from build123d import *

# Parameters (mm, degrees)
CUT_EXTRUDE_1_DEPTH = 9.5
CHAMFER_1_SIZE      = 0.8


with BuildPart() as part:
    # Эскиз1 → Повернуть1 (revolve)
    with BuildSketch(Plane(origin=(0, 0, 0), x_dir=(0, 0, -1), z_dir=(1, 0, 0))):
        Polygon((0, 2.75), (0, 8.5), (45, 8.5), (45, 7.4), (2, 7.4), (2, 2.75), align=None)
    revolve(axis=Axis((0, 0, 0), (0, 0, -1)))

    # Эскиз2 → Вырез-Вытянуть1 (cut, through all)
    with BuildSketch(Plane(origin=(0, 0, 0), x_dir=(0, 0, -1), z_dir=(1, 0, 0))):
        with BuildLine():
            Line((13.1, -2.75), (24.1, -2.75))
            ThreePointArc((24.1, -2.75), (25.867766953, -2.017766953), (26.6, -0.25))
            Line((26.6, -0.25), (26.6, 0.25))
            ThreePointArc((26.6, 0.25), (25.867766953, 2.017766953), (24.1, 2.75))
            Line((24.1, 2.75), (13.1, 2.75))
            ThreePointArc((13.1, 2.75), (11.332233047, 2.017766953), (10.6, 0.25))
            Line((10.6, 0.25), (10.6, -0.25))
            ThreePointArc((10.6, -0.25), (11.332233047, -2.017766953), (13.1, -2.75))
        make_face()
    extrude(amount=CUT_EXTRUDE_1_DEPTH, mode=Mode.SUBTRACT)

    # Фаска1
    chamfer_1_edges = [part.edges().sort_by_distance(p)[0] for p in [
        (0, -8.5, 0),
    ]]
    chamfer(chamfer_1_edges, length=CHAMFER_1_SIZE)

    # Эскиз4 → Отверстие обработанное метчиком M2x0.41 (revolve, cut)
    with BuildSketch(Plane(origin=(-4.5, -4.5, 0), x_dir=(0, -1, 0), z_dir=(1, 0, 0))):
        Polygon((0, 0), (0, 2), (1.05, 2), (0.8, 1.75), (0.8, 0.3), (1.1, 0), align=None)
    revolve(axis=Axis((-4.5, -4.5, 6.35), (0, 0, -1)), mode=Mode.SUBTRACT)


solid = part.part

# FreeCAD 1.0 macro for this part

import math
import FreeCAD as App
import Part
import Sketcher
Q = App.Units.Quantity


def edges_at(feature, points):
    """Names of the edges that pass closest to the given points."""
    edges = feature.Shape.Edges
    near = lambda p: min(range(len(edges)), key=lambda i: edges[i].distToShape(Part.Vertex(*p))[0])
    return sorted({f"Edge{near(p) + 1}" for p in points})


def add_polygon(sketch, points):
    """Adds a closed chain of lines whose ends are joined by coincident constraints."""
    first, n = sketch.GeometryCount, len(points)
    for a, b in zip(points, points[1:] + points[:1]):
        sketch.addGeometry(Part.LineSegment(App.Vector(*a, 0), App.Vector(*b, 0)), False)
    for i in range(n):
        sketch.addConstraint(Sketcher.Constraint("Coincident", first + i, 2, first + (i + 1) % n, 1))

doc = App.newDocument("Part")
body = doc.addObject("PartDesign::Body", "Body")

sketch1 = doc.addObject("Sketcher::SketchObject", "Sketch")
body.addObject(sketch1)
sketch1.AttachmentSupport = (doc.YZ_Plane, [""])
sketch1.MapMode = "FlatFace"
add_polygon(sketch1, [(8.5, 0), (2.8, 0), (2.8, -2), (7.4, -2), (7.4, -45), (8.5, -45)])
sketch1.addConstraint(Sketcher.Constraint("Horizontal", 0))
sketch1.addConstraint(Sketcher.Constraint("Vertical", 1))
sketch1.addConstraint(Sketcher.Constraint("Horizontal", 2))
sketch1.addConstraint(Sketcher.Constraint("Vertical", 3))
sketch1.addConstraint(Sketcher.Constraint("Horizontal", 4))
sketch1.addConstraint(Sketcher.Constraint("Vertical", 5))
sketch1.addConstraint(Sketcher.Constraint("PointOnObject", 0, 2, -1))
sketch1.addConstraint(Sketcher.Constraint("DistanceY", 1, 2, 1, 1, Q("2 mm")))
sketch1.addConstraint(Sketcher.Constraint("DistanceY", 3, 2, 3, 1, Q("43 mm")))
sketch1.addConstraint(Sketcher.Constraint("DistanceX", 4, 1, 4, 2, Q("1.1 mm")))
sketch1.addConstraint(Sketcher.Constraint("DistanceX", 0, 2, 0, 1, Q("5.75 mm")))
sketch1.addConstraint(Sketcher.Constraint("DistanceX", -1, 1, 2, 2, Q("7.4 mm")))
revolution = doc.addObject("PartDesign::Revolution", "Revolution")
body.addObject(revolution)
revolution.Profile = sketch1
revolution.ReferenceAxis = (sketch1, ["V_Axis"])
revolution.Angle = 360

sketch2 = doc.addObject("Sketcher::SketchObject", "Sketch001")
body.addObject(sketch2)
sketch2.AttachmentSupport = (doc.YZ_Plane, [""])
sketch2.MapMode = "FlatFace"
sketch2.addGeometry(Part.LineSegment(App.Vector(-2.8, -13.1, 0), App.Vector(-2.8, -24.1, 0)), False)
sketch2.addGeometry(Part.ArcOfCircle(Part.Circle(App.Vector(-0.2, -24.1, 0), App.Vector(0, 0, 1), 2.5), math.radians(180), math.radians(270)), False)
sketch2.addGeometry(Part.LineSegment(App.Vector(-0.2, -26.6, 0), App.Vector(0.2, -26.6, 0)), False)
sketch2.addGeometry(Part.ArcOfCircle(Part.Circle(App.Vector(0.2, -24.1, 0), App.Vector(0, 0, 1), 2.5), math.radians(-90), math.radians(0)), False)
sketch2.addGeometry(Part.LineSegment(App.Vector(2.8, -24.1, 0), App.Vector(2.8, -13.1, 0)), False)
sketch2.addGeometry(Part.ArcOfCircle(Part.Circle(App.Vector(0.2, -13.1, 0), App.Vector(0, 0, 1), 2.5), math.radians(0), math.radians(90)), False)
sketch2.addGeometry(Part.LineSegment(App.Vector(0.2, -10.6, 0), App.Vector(-0.2, -10.6, 0)), False)
sketch2.addGeometry(Part.ArcOfCircle(Part.Circle(App.Vector(-0.2, -13.1, 0), App.Vector(0, 0, 1), 2.5), math.radians(90), math.radians(180)), False)
sketch2.addConstraint(Sketcher.Constraint("Tangent", 0, 2, 1, 1))
sketch2.addConstraint(Sketcher.Constraint("Tangent", 1, 2, 2, 1))
sketch2.addConstraint(Sketcher.Constraint("Tangent", 2, 2, 3, 1))
sketch2.addConstraint(Sketcher.Constraint("Tangent", 3, 2, 4, 1))
sketch2.addConstraint(Sketcher.Constraint("Tangent", 4, 2, 5, 1))
sketch2.addConstraint(Sketcher.Constraint("Tangent", 5, 2, 6, 1))
sketch2.addConstraint(Sketcher.Constraint("Tangent", 6, 2, 7, 1))
sketch2.addConstraint(Sketcher.Constraint("Tangent", 7, 2, 0, 1))
sketch2.addConstraint(Sketcher.Constraint("Vertical", 0))
sketch2.addConstraint(Sketcher.Constraint("Horizontal", 2))
sketch2.addConstraint(Sketcher.Constraint("Vertical", 4))
sketch2.addConstraint(Sketcher.Constraint("Horizontal", 6))
sketch2.addConstraint(Sketcher.Constraint("Equal", 1, 3))
sketch2.addConstraint(Sketcher.Constraint("Equal", 3, 5))
sketch2.addConstraint(Sketcher.Constraint("Equal", 5, 7))
sketch2.addConstraint(Sketcher.Constraint("Radius", 1, Q("2.5 mm")))
sketch2.addConstraint(Sketcher.Constraint("DistanceY", 0, 2, 0, 1, Q("11 mm")))
sketch2.addConstraint(Sketcher.Constraint("DistanceX", 2, 1, 2, 2, Q("0.5 mm")))
sketch2.addConstraint(Sketcher.Constraint("DistanceY", 1, 3, -1, 1, Q("24.1 mm")))
sketch2.addConstraint(Sketcher.Constraint("DistanceX", 1, 3, -1, 1, Q("0.25 mm")))
pocket1 = doc.addObject("PartDesign::Pocket", "Pocket")
body.addObject(pocket1)
pocket1.Profile = sketch2
pocket1.Type = "ThroughAll"
pocket1.Reversed = True
doc.recompute()

chamfer = doc.addObject("PartDesign::Chamfer", "Chamfer")
body.addObject(chamfer)
chamfer.Base = (pocket1, edges_at(pocket1, [(0, -8.5, 0)]))
chamfer.Size = 0.8

sketch3 = doc.addObject("Sketcher::SketchObject", "Sketch002")
body.addObject(sketch3)
sketch3.AttachmentSupport = (doc.YZ_Plane, [""])
sketch3.MapMode = "FlatFace"
sketch3.AttachmentOffset = App.Placement(App.Vector(0, 0, -4.5), App.Rotation())
add_polygon(sketch3, [(-4.5, -2), (-4.5, 0), (-5.6, 0), (-5.3, -0.3), (-5.3, -1.75), (-5.55, -2)])
sketch3.addGeometry(Part.LineSegment(App.Vector(-4.5, 0, 0), App.Vector(-4.5, -2, 0)), True)
sketch3.addConstraint(Sketcher.Constraint("Vertical", 0))
sketch3.addConstraint(Sketcher.Constraint("Horizontal", 1))
sketch3.addConstraint(Sketcher.Constraint("Vertical", 3))
sketch3.addConstraint(Sketcher.Constraint("Horizontal", 5))
sketch3.addConstraint(Sketcher.Constraint("Vertical", 6))
sketch3.addConstraint(Sketcher.Constraint("Coincident", 6, 1, 0, 2))
sketch3.addConstraint(Sketcher.Constraint("PointOnObject", 0, 2, -1))
sketch3.addConstraint(Sketcher.Constraint("Perpendicular", 2, 4))
sketch3.addConstraint(Sketcher.Constraint("Horizontal", 4, 2, 6, 2))
sketch3.addConstraint(Sketcher.Constraint("DistanceY", 0, 1, 0, 2, Q("2 mm")))
sketch3.addConstraint(Sketcher.Constraint("Angle", 2, Q("-45 deg")))
sketch3.addConstraint(Sketcher.Constraint("DistanceX", 1, 2, 1, 1, Q("1.1 mm")))
sketch3.addConstraint(Sketcher.Constraint("DistanceX", 5, 1, 5, 2, Q("1.05 mm")))
sketch3.addConstraint(Sketcher.Constraint("DistanceY", 3, 2, 3, 1, Q("1.45 mm")))
sketch3.addConstraint(Sketcher.Constraint("DistanceX", 0, 2, -1, 1, Q("4.5 mm")))
groove = doc.addObject("PartDesign::Groove", "Groove")
body.addObject(groove)
groove.Profile = sketch3
groove.ReferenceAxis = (sketch3, ["Axis0"])
groove.Angle = 360

doc.recompute()
